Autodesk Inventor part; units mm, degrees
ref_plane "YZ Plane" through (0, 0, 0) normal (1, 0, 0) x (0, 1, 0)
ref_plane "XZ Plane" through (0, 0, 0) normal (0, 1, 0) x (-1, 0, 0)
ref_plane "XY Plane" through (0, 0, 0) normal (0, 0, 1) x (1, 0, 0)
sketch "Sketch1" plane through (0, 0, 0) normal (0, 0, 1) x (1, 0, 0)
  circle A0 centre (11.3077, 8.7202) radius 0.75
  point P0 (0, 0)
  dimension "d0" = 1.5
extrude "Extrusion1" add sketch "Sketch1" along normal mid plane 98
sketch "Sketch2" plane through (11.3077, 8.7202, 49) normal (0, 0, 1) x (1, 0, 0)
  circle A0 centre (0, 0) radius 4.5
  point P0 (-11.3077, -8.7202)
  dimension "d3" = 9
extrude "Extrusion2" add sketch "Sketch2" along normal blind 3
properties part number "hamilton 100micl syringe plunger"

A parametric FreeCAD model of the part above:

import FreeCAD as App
import Part
import Sketcher
from FreeCAD import Vector

doc = App.newDocument("Part")
params = doc.addObject("Spreadsheet::Sheet", "Params")
for row, (alias, value) in enumerate([
    ("sketch1_diameter", "1.5 mm"),
    ("pad1_length", "98 mm"),
    ("sketch2_diameter", "9 mm"),
    ("pad2_length", "3 mm"),
], start=1):
    params.set(f"A{row}", alias)
    params.set(f"B{row}", "=" + value)
    params.setAlias(f"B{row}", alias)

body = doc.addObject("PartDesign::Body", "Body")

# Sketch on XY plane
sketch1 = body.newObject("Sketcher::SketchObject", "Sketch")
sketch1.AttachmentSupport = (doc.getObject("XY_Plane"), [""])
sketch1.MapMode = "FlatFace"
sketch1.addGeometry(Part.Circle(Vector(11.3, 8.7, 0), Vector(0, 0, 1), 0.8), False)
sketch1.addConstraint(Sketcher.Constraint("Diameter", 0, 1.5))
sketch1.addConstraint(Sketcher.Constraint("DistanceX", -1, 1, 0, 3, 11.3077))
sketch1.addConstraint(Sketcher.Constraint("DistanceY", -1, 1, 0, 3, 8.7202))
sketch1.setExpression("Constraints[0]", "Params.sketch1_diameter")
pad1 = body.newObject("PartDesign::Pad", "Pad")
pad1.Profile = sketch1
pad1.setExpression("Length", "Params.pad1_length")
pad1.Midplane = True

# Sketch on XY plane
sketch2 = body.newObject("Sketcher::SketchObject", "Sketch001")
sketch2.AttachmentSupport = (doc.getObject("XY_Plane"), [""])
sketch2.MapMode = "FlatFace"
sketch2.AttachmentOffset = App.Placement(Vector(0, 0, 49), App.Rotation())
sketch2.addGeometry(Part.Circle(Vector(11.3, 8.7, 0), Vector(0, 0, 1), 4.5), False)
sketch2.addConstraint(Sketcher.Constraint("Diameter", 0, 9.0))
sketch2.addConstraint(Sketcher.Constraint("DistanceX", -1, 1, 0, 3, 11.3077))
sketch2.addConstraint(Sketcher.Constraint("DistanceY", -1, 1, 0, 3, 8.7202))
sketch2.setExpression("Constraints[0]", "Params.sketch2_diameter")
pad2 = body.newObject("PartDesign::Pad", "Pad001")
pad2.Profile = sketch2
pad2.setExpression("Length", "Params.pad2_length")

doc.recompute()
